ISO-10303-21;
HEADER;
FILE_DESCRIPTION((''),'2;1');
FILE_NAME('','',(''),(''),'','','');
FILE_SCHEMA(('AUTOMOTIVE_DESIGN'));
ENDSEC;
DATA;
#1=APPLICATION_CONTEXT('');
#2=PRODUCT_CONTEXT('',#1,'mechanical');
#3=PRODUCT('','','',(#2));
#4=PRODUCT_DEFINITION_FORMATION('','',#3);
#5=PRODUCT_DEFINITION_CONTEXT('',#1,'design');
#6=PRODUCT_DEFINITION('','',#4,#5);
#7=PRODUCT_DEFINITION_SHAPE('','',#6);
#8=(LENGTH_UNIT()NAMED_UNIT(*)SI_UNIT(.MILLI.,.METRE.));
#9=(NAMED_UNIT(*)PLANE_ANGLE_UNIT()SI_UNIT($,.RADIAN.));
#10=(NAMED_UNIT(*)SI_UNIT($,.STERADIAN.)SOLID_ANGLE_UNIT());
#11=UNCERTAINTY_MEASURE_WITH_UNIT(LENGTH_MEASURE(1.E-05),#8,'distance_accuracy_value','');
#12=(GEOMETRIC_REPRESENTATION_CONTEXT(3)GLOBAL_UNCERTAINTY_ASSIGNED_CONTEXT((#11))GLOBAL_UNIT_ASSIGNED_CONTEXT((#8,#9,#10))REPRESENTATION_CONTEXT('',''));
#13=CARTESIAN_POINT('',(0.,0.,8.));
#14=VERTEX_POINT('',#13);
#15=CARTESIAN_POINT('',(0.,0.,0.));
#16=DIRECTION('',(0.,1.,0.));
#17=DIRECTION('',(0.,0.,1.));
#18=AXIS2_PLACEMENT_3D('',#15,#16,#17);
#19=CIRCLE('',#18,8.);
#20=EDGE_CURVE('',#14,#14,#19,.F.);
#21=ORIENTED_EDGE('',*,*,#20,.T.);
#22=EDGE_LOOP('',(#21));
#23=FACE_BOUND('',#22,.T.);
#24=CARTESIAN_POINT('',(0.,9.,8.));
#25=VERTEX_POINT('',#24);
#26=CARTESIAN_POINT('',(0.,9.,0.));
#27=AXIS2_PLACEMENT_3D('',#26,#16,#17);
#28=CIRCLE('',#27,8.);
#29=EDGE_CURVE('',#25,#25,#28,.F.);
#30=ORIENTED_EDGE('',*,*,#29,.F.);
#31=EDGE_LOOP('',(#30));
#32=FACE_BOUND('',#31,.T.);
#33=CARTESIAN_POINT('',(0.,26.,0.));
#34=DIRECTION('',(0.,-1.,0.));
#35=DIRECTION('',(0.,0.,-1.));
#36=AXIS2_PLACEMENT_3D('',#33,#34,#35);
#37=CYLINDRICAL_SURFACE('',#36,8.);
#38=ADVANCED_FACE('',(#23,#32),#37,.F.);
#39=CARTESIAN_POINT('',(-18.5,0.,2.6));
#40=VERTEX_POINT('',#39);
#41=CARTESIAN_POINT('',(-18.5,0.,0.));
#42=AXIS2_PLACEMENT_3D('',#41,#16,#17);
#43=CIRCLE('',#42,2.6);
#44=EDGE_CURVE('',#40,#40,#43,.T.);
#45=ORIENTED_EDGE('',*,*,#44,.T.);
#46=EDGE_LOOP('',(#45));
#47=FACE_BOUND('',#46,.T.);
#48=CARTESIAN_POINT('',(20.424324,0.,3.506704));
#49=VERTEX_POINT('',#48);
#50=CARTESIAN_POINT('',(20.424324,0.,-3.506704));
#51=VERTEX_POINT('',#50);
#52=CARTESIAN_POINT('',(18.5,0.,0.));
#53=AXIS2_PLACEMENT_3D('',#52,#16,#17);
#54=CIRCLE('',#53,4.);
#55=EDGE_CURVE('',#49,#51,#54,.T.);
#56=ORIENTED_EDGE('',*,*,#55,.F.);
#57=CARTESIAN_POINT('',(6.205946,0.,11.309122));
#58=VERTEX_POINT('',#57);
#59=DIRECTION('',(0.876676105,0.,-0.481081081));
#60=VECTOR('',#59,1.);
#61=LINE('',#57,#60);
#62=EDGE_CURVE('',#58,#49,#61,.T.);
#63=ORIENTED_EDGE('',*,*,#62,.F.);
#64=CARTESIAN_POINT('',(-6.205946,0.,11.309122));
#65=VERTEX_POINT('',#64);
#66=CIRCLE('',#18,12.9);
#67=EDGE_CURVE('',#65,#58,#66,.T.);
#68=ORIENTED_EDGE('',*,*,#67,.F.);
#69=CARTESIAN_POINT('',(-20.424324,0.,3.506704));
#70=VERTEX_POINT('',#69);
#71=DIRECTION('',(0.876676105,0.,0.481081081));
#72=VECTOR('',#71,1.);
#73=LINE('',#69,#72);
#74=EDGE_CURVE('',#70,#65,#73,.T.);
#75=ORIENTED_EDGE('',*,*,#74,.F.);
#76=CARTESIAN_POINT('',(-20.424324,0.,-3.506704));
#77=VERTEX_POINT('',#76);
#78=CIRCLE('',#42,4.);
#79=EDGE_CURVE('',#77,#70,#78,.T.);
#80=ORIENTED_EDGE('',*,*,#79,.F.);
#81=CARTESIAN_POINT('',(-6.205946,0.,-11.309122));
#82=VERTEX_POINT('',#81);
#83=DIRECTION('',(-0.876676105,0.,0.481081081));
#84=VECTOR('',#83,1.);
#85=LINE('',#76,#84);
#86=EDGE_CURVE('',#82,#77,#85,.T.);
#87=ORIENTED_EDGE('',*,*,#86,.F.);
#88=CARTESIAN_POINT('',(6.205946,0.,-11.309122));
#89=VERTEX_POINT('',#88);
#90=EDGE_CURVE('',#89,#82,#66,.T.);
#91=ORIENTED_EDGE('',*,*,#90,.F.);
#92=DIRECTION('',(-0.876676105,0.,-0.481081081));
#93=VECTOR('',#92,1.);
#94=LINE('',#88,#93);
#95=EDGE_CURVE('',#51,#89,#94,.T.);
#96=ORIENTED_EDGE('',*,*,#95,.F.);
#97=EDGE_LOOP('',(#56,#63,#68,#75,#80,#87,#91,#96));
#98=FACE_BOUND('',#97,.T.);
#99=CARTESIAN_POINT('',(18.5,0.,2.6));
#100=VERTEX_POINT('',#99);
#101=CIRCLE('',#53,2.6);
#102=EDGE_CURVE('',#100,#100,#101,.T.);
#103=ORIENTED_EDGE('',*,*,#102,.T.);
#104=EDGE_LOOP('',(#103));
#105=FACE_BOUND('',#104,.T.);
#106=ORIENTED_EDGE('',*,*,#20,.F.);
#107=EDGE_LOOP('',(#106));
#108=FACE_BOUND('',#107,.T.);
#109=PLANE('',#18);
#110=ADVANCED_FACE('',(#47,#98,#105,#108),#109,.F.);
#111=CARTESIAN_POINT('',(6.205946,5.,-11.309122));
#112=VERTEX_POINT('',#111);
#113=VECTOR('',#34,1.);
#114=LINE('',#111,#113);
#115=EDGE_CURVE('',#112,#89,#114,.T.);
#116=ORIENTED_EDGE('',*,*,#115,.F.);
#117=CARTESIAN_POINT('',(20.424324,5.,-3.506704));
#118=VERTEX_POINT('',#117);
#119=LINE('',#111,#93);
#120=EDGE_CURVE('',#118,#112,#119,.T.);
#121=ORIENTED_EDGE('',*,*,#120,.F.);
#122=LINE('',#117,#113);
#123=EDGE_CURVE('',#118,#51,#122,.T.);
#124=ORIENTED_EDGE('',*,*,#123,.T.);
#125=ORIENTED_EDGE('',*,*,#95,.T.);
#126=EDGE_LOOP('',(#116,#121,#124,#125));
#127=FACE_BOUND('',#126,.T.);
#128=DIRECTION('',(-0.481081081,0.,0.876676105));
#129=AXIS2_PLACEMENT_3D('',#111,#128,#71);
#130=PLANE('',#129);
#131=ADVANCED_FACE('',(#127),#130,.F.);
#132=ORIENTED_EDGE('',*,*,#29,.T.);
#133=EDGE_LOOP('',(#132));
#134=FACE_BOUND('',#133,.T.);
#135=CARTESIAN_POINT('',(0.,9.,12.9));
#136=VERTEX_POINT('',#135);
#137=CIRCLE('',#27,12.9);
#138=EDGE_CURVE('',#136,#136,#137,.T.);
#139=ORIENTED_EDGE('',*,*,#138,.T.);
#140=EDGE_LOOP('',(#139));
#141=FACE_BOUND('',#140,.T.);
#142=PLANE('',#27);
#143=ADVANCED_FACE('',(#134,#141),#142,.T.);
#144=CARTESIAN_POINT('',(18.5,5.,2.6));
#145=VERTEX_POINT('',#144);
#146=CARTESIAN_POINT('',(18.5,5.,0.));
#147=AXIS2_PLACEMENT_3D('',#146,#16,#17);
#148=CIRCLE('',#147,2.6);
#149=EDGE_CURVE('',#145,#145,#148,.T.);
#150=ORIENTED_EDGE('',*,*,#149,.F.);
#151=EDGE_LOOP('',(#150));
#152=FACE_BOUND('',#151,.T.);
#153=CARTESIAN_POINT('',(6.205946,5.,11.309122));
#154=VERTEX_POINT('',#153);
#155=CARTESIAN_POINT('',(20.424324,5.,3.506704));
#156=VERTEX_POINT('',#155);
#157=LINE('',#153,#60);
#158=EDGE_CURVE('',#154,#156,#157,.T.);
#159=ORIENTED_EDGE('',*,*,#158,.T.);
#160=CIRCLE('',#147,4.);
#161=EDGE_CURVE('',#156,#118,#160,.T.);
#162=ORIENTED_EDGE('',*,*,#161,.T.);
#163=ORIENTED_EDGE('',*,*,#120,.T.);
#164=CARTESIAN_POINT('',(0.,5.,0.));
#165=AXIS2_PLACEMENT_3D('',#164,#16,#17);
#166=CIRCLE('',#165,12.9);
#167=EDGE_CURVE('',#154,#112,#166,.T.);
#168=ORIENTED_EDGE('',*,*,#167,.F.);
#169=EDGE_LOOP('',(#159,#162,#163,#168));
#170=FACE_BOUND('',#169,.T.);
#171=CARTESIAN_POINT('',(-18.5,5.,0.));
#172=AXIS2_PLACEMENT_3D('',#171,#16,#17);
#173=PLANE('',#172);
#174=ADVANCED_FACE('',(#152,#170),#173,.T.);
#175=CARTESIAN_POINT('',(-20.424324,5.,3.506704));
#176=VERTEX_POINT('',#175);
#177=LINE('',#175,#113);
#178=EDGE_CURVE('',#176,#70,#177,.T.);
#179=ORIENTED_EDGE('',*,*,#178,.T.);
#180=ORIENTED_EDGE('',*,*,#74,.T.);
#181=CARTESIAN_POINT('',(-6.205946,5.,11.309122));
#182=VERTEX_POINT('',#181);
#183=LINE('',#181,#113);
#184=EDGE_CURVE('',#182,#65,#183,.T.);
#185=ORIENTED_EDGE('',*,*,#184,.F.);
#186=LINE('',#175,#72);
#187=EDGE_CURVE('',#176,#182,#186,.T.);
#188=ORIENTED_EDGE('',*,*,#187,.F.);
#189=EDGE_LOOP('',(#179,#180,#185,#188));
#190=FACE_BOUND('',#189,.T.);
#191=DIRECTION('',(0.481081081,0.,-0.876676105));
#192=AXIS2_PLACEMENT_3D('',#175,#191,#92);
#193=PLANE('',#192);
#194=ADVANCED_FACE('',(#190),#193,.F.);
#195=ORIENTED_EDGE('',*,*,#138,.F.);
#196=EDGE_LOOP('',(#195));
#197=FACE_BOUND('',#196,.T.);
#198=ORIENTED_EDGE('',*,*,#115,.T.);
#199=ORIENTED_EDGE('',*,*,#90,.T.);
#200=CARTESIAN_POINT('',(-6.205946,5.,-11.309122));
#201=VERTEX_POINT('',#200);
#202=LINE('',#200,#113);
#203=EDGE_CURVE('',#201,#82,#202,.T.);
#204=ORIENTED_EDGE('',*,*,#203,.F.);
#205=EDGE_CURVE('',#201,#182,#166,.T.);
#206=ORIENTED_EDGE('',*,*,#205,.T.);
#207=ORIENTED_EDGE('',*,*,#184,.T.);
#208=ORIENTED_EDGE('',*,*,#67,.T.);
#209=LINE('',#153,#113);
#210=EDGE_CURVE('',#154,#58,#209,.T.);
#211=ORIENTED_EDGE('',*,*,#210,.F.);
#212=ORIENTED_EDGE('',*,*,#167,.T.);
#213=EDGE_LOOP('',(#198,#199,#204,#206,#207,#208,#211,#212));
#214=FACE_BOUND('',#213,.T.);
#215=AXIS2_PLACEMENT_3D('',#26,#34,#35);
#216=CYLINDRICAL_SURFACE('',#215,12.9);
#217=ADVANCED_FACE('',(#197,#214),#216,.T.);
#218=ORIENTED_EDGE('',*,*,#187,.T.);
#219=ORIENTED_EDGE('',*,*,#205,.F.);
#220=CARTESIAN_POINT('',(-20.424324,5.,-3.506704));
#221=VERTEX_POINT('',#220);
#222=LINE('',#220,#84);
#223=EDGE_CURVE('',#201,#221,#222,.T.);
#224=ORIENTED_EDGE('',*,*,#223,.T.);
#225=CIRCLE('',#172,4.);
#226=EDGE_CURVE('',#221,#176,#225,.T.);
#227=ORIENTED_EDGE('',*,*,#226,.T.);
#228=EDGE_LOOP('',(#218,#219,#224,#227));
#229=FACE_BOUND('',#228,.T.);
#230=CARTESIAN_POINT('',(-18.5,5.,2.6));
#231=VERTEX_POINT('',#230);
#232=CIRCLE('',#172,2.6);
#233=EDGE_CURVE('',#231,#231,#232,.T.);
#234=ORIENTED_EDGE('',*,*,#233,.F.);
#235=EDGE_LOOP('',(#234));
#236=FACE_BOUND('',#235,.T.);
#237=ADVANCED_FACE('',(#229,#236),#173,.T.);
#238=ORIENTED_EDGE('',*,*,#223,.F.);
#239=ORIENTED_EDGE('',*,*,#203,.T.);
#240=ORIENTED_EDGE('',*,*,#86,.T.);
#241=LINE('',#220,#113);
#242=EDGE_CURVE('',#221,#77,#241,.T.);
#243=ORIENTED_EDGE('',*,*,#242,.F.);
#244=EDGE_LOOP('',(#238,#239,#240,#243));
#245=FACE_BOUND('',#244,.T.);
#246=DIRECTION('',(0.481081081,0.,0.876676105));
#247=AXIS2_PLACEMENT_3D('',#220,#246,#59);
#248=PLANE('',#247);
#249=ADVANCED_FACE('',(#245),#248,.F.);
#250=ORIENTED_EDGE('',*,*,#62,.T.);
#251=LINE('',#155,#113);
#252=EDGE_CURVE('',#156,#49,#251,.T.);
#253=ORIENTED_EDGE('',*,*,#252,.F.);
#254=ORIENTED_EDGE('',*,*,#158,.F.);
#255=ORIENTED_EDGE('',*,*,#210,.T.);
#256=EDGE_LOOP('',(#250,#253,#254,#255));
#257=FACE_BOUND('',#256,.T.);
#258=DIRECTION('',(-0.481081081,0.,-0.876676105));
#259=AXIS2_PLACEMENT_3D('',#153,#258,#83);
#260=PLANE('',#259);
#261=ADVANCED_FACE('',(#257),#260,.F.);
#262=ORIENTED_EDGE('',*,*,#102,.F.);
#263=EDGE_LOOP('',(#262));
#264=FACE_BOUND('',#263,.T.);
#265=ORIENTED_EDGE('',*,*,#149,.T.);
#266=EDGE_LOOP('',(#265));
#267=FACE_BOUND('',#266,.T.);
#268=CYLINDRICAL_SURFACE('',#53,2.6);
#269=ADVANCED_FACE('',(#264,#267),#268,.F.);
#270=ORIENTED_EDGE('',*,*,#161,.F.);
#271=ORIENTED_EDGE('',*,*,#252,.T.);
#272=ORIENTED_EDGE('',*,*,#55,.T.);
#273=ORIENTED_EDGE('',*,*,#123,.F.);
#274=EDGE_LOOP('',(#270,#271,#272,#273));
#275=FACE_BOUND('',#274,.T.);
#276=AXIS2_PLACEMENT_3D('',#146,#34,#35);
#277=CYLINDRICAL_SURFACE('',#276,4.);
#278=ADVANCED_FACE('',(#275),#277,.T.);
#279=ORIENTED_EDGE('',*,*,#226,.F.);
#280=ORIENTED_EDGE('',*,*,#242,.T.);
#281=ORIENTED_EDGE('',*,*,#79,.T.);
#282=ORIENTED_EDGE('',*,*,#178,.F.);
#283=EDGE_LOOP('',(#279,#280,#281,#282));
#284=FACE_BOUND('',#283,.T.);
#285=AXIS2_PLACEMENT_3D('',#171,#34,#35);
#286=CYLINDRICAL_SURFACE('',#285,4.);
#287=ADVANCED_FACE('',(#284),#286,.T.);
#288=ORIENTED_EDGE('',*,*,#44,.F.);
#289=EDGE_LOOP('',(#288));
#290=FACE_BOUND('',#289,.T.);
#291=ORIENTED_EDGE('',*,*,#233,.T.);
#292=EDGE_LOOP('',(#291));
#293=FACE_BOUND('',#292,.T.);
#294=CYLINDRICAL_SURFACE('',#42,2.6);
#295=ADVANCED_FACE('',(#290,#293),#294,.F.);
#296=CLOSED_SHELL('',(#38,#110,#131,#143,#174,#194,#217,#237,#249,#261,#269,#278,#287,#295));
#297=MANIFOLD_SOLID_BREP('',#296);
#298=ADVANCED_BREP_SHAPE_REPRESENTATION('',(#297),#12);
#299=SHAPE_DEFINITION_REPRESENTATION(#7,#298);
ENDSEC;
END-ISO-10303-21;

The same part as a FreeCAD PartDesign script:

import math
import FreeCAD as App
import Part
import Sketcher
Q = App.Units.Quantity

doc = App.newDocument("Part")
params = doc.addObject("Spreadsheet::Sheet", "Params")
for row, (alias, value) in enumerate([
    ("sketch1_diameter", "25.8 mm"),
    ("pad1_length", "9 mm"),
    ("sketch2_radius", "3.999999 mm"),
    ("sketch2_radius2", "12.900002 mm"),
    ("pad2_length", "5 mm"),
    ("sketch3_diameter", "12.2 mm"),
    ("pad3_length", "2.5 mm"),
    ("sketch4_diameter", "8 mm"),
    ("sketch5_diameter", "5.2 mm"),
    ("sketch6_diameter", "16 mm"),
], start=1):
    params.set(f"A{row}", alias)
    params.set(f"B{row}", "=" + value)
    params.setAlias(f"B{row}", alias)

body = doc.addObject("PartDesign::Body", "Body")

# Sketch on XZ plane
sketch1 = body.newObject("Sketcher::SketchObject", "Sketch")
sketch1.AttachmentSupport = (doc.getObject("XZ_Plane"), [""])
sketch1.MapMode = "FlatFace"
sketch1.addGeometry(Part.Circle(App.Vector(0, 0, 0), App.Vector(0, 0, 1), 13), False)
sketch1.addConstraint([
    Sketcher.Constraint("Coincident", 0, 3, -1, 1),
    Sketcher.Constraint("Diameter", 0, Q("25.8 mm")),
])
sketch1.setExpression("Constraints[1]", "Params.sketch1_diameter")
pad1 = body.newObject("PartDesign::Pad", "Pad")
pad1.Profile = sketch1
pad1.setExpression("Length", "Params.pad1_length")
pad1.Reversed = True

# Sketch on XZ plane
sketch2 = body.newObject("Sketcher::SketchObject", "Sketch001")
sketch2.AttachmentSupport = (doc.getObject("XZ_Plane"), [""])
sketch2.MapMode = "FlatFace"
sketch2.addGeometry([
    Part.LineSegment(App.Vector(-6.2, -11.3, 0), App.Vector(-20.4, -3.5, 0)),  # 0
    Part.ArcOfCircle(Part.Circle(App.Vector(-18.5, 0, 0), App.Vector(0, 0, 1), 4), math.radians(119), math.radians(241)),  # 1
    Part.LineSegment(App.Vector(-20.4, 3.5, 0), App.Vector(-6.2, 11.3, 0)),  # 2
    Part.ArcOfCircle(Part.Circle(App.Vector(0, 0, 0), App.Vector(0, 0, 1), 12.9), math.radians(61), math.radians(119)),  # 3
    Part.LineSegment(App.Vector(6.2, 11.3, 0), App.Vector(20.4, 3.5, 0)),  # 4
    Part.ArcOfCircle(Part.Circle(App.Vector(18.5, 0, 0), App.Vector(0, 0, 1), 4), math.radians(-61), math.radians(61)),  # 5
    Part.LineSegment(App.Vector(20.4, -3.5, 0), App.Vector(6.2, -11.3, 0)),  # 6
    Part.ArcOfCircle(Part.Circle(App.Vector(0, 0, 0), App.Vector(0, 0, 1), 12.9), math.radians(-119), math.radians(-61)),  # 7
], False)
sketch2.addConstraint([
    Sketcher.Constraint("Tangent", 0, 2, 1, 2),
    Sketcher.Constraint("Tangent", 1, 1, 2, 1),
    Sketcher.Constraint("Tangent", 2, 2, 3, 2),
    Sketcher.Constraint("Tangent", 3, 1, 4, 1),
    Sketcher.Constraint("Tangent", 4, 2, 5, 2),
    Sketcher.Constraint("Tangent", 5, 1, 6, 1),
    Sketcher.Constraint("Tangent", 6, 2, 7, 2),
    Sketcher.Constraint("Tangent", 7, 1, 0, 1),
    Sketcher.Constraint("Coincident", 3, 3, -1, 1),
    Sketcher.Constraint("Coincident", 7, 3, -1, 1),
    Sketcher.Constraint("Equal", 1, 5),
    Sketcher.Constraint("Equal", 3, 7),
    Sketcher.Constraint("Symmetric", 1, 3, 5, 3, -1, 1),
    Sketcher.Constraint("PointOnObject", 1, 3, -1),
    Sketcher.Constraint("Radius", 1, Q("3.999999 mm")),
    Sketcher.Constraint("Radius", 3, Q("12.900002 mm")),
    Sketcher.Constraint("DistanceX", 1, 3, -1, 1, Q("18.500001 mm")),
])
sketch2.setExpression("Constraints[14]", "Params.sketch2_radius")
sketch2.setExpression("Constraints[15]", "Params.sketch2_radius2")
pad2 = body.newObject("PartDesign::Pad", "Pad001")
pad2.Profile = sketch2
pad2.setExpression("Length", "Params.pad2_length")
pad2.Reversed = True

# Sketch on XZ plane
sketch3 = body.newObject("Sketcher::SketchObject", "Sketch002")
sketch3.AttachmentSupport = (doc.getObject("XZ_Plane"), [""])
sketch3.MapMode = "FlatFace"
sketch3.AttachmentOffset = App.Placement(App.Vector(0, 0, -9), App.Rotation())
sketch3.addGeometry(Part.Circle(App.Vector(0, 0, 0), App.Vector(0, 0, 1), 6), False)
sketch3.addConstraint([
    Sketcher.Constraint("Coincident", 0, 3, -1, 1),
    Sketcher.Constraint("Diameter", 0, Q("12.2 mm")),
])
sketch3.setExpression("Constraints[1]", "Params.sketch3_diameter")
pad3 = body.newObject("PartDesign::Pad", "Pad002")
pad3.Profile = sketch3
pad3.setExpression("Length", "Params.pad3_length")
pad3.Reversed = True

# Sketch on XZ plane
sketch4 = body.newObject("Sketcher::SketchObject", "Sketch003")
sketch4.AttachmentSupport = (doc.getObject("XZ_Plane"), [""])
sketch4.MapMode = "FlatFace"
sketch4.AttachmentOffset = App.Placement(App.Vector(0, 0, -11.5), App.Rotation())
sketch4.addGeometry(Part.Circle(App.Vector(0, 0, 0), App.Vector(0, 0, 1), 4), False)
sketch4.addConstraint([
    Sketcher.Constraint("Coincident", 0, 3, -1, 1),
    Sketcher.Constraint("Diameter", 0, Q("8 mm")),
])
sketch4.setExpression("Constraints[1]", "Params.sketch4_diameter")
pocket1 = body.newObject("PartDesign::Pocket", "Pocket")
pocket1.Profile = sketch4
pocket1.Type = "ThroughAll"
pocket1.Reversed = True

# Sketch on XZ plane
sketch5 = body.newObject("Sketcher::SketchObject", "Sketch004")
sketch5.AttachmentSupport = (doc.getObject("XZ_Plane"), [""])
sketch5.MapMode = "FlatFace"
sketch5.AttachmentOffset = App.Placement(App.Vector(0, 0, -5), App.Rotation())
sketch5.addGeometry([
    Part.Circle(App.Vector(18.5, 0, 0), App.Vector(0, 0, 1), 2.6),
    Part.Circle(App.Vector(-18.5, 0, 0), App.Vector(0, 0, 1), 2.6),
], False)
sketch5.addConstraint([
    Sketcher.Constraint("Equal", 0, 1),
    Sketcher.Constraint("Symmetric", 0, 3, 1, 3, -1, 1),
    Sketcher.Constraint("PointOnObject", 0, 3, -1),
    Sketcher.Constraint("Diameter", 0, Q("5.2 mm")),
    Sketcher.Constraint("DistanceX", 1, 3, 0, 3, Q("37 mm")),
])
sketch5.setExpression("Constraints[3]", "Params.sketch5_diameter")
pocket2 = body.newObject("PartDesign::Pocket", "Pocket001")
pocket2.Profile = sketch5
pocket2.Type = "ThroughAll"
pocket2.Reversed = True

# Sketch on XZ plane
sketch6 = body.newObject("Sketcher::SketchObject", "Sketch005")
sketch6.AttachmentSupport = (doc.getObject("XZ_Plane"), [""])
sketch6.MapMode = "FlatFace"
sketch6.AttachmentOffset = App.Placement(App.Vector(0, 0, -9), App.Rotation())
sketch6.addGeometry(Part.Circle(App.Vector(0, 0, 0), App.Vector(0, 0, 1), 8), False)
sketch6.addConstraint([
    Sketcher.Constraint("Coincident", 0, 3, -1, 1),
    Sketcher.Constraint("Diameter", 0, Q("16 mm")),
])
sketch6.setExpression("Constraints[1]", "Params.sketch6_diameter")
pocket3 = body.newObject("PartDesign::Pocket", "Pocket002")
pocket3.Profile = sketch6
pocket3.Type = "ThroughAll"
pocket3.Midplane = True

doc.recompute()
